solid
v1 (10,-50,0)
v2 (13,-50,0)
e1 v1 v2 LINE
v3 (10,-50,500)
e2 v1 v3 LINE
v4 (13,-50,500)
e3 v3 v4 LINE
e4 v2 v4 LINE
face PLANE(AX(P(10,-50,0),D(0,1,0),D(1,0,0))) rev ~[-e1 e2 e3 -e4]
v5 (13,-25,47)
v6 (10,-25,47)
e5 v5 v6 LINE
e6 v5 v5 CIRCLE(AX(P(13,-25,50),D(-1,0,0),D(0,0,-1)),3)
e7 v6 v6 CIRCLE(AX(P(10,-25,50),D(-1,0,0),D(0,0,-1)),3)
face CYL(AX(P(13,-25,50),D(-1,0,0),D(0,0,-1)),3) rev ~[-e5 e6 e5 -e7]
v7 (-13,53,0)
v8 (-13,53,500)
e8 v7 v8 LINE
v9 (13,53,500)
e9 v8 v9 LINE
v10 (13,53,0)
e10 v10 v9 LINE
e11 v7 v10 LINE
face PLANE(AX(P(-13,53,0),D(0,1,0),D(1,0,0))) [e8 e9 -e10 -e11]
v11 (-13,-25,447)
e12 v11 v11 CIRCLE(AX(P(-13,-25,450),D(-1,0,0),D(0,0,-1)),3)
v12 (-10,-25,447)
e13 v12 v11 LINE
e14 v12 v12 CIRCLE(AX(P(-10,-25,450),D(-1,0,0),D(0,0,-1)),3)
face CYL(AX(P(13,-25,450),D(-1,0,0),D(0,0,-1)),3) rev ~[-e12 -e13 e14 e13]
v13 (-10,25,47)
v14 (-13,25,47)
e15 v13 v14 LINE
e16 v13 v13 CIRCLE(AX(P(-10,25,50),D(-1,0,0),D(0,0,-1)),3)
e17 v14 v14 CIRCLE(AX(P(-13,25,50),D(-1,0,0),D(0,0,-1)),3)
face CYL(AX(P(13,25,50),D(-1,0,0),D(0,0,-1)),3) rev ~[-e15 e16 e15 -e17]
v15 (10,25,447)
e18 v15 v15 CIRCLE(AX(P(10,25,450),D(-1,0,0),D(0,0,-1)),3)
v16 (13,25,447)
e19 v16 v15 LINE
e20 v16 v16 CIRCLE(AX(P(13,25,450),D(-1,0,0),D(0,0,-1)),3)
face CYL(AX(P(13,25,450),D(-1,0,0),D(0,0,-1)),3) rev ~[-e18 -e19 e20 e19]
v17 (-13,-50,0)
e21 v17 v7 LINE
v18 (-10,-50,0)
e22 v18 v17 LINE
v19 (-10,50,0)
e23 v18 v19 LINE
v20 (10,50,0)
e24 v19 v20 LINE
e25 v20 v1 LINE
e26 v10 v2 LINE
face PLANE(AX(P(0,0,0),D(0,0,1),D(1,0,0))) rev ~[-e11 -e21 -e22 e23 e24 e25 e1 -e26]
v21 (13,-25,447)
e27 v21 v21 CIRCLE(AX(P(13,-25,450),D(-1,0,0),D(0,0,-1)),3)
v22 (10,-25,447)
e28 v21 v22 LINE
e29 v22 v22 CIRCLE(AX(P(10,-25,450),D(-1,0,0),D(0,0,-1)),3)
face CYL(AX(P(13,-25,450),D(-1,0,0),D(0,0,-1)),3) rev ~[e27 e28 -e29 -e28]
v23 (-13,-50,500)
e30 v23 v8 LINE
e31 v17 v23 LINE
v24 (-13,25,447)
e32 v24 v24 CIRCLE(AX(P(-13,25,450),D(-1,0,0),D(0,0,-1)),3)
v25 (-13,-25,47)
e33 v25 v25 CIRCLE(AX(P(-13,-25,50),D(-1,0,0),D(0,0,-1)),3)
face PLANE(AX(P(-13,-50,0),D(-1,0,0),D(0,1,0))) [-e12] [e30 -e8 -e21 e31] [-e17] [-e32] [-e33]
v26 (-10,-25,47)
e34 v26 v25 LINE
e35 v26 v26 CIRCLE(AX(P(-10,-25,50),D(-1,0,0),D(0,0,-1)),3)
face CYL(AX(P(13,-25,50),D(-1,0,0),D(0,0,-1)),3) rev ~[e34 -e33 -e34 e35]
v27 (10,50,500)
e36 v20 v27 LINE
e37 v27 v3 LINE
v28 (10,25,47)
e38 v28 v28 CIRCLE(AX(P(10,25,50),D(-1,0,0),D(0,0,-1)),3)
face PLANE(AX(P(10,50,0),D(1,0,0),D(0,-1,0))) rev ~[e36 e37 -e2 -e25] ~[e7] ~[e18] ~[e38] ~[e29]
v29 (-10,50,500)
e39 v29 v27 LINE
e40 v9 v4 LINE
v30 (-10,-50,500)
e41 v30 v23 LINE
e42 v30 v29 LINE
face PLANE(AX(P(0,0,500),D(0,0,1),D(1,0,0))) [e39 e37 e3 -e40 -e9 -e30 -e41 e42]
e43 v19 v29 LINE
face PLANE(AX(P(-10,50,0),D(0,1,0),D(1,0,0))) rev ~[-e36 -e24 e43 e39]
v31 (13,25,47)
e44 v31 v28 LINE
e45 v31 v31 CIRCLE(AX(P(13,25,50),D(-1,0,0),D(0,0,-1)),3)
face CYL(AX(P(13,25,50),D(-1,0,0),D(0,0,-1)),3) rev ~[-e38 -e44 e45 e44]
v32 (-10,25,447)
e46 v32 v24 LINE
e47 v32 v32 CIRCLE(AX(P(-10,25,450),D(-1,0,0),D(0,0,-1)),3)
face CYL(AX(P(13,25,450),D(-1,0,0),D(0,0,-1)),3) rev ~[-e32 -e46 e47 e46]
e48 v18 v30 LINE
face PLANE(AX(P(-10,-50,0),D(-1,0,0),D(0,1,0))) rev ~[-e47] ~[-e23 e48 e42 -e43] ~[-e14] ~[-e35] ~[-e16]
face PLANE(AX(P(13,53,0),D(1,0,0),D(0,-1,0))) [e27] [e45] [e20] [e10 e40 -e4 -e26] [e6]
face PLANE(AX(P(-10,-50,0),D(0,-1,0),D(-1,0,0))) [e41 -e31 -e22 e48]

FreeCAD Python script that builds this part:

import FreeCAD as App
import Part
import Sketcher
Q = App.Units.Quantity


def add_polygon(sketch, points):
    """Adds a closed chain of lines whose ends are joined by coincident constraints."""
    first, n = sketch.GeometryCount, len(points)
    for a, b in zip(points, points[1:] + points[:1]):
        sketch.addGeometry(Part.LineSegment(App.Vector(*a, 0), App.Vector(*b, 0)), False)
    for i in range(n):
        sketch.addConstraint(Sketcher.Constraint("Coincident", first + i, 2, first + (i + 1) % n, 1))

doc = App.newDocument("Part")
body = doc.addObject("PartDesign::Body", "Body")

sketch1 = body.newObject("Sketcher::SketchObject", "Sketch")
sketch1.AttachmentSupport = (doc.getObject("XY_Plane"), [""])
sketch1.MapMode = "FlatFace"
add_polygon(sketch1, [(-10, -50), (-10, 50), (10, 50), (10, -50), (13, -50), (13, 53), (-13, 53), (-13, -50)])
sketch1.addConstraint([
    Sketcher.Constraint("Vertical", 0),
    Sketcher.Constraint("Horizontal", 1),
    Sketcher.Constraint("Vertical", 2),
    Sketcher.Constraint("Horizontal", 3),
    Sketcher.Constraint("Vertical", 4),
    Sketcher.Constraint("Horizontal", 5),
    Sketcher.Constraint("Vertical", 6),
    Sketcher.Constraint("Horizontal", 7),
    Sketcher.Constraint("Symmetric", 0, 2, 2, 2, -1, 1),
    Sketcher.Constraint("Symmetric", 3, 2, 6, 2, -2),
    Sketcher.Constraint("DistanceX", 1, 1, 1, 2, Q("20 mm")),
    Sketcher.Constraint("DistanceX", 3, 1, 3, 2, Q("3 mm")),
    Sketcher.Constraint("DistanceY", 0, 1, 0, 2, Q("100 mm")),
    Sketcher.Constraint("DistanceY", 4, 1, 4, 2, Q("103 mm")),
])
pad1 = body.newObject("PartDesign::Pad", "Pad")
pad1.Profile = sketch1
pad1.Length = 500

sketch2 = body.newObject("Sketcher::SketchObject", "Sketch001")
sketch2.AttachmentSupport = (doc.getObject("YZ_Plane"), [""])
sketch2.MapMode = "FlatFace"
sketch2.AttachmentOffset = App.Placement(App.Vector(0, 0, 13), App.Rotation())
sketch2.addGeometry([
    Part.Circle(App.Vector(25, 450, 0), App.Vector(0, 0, 1), 3),
    Part.Circle(App.Vector(-25, 450, 0), App.Vector(0, 0, 1), 3),
    Part.Circle(App.Vector(25, 50, 0), App.Vector(0, 0, 1), 3),
    Part.Circle(App.Vector(-25, 50, 0), App.Vector(0, 0, 1), 3),
], False)
sketch2.addConstraint([
    Sketcher.Constraint("Equal", 0, 1),
    Sketcher.Constraint("Equal", 1, 2),
    Sketcher.Constraint("Equal", 2, 3),
    Sketcher.Constraint("Symmetric", 0, 3, 1, 3, -2),
    Sketcher.Constraint("Symmetric", 2, 3, 3, 3, -2),
    Sketcher.Constraint("Vertical", 0, 3, 2, 3),
    Sketcher.Constraint("Diameter", 0, Q("6 mm")),
    Sketcher.Constraint("DistanceX", -1, 1, 0, 3, Q("25 mm")),
    Sketcher.Constraint("DistanceY", -1, 1, 0, 3, Q("450 mm")),
    Sketcher.Constraint("DistanceY", -1, 1, 2, 3, Q("50 mm")),
])
doc.recompute()
hole = body.newObject("PartDesign::Hole", "Hole")
hole.Profile = sketch2
hole.ThreadType = "None"
hole.Diameter = 6
hole.DepthType = "ThroughAll"

doc.recompute()
